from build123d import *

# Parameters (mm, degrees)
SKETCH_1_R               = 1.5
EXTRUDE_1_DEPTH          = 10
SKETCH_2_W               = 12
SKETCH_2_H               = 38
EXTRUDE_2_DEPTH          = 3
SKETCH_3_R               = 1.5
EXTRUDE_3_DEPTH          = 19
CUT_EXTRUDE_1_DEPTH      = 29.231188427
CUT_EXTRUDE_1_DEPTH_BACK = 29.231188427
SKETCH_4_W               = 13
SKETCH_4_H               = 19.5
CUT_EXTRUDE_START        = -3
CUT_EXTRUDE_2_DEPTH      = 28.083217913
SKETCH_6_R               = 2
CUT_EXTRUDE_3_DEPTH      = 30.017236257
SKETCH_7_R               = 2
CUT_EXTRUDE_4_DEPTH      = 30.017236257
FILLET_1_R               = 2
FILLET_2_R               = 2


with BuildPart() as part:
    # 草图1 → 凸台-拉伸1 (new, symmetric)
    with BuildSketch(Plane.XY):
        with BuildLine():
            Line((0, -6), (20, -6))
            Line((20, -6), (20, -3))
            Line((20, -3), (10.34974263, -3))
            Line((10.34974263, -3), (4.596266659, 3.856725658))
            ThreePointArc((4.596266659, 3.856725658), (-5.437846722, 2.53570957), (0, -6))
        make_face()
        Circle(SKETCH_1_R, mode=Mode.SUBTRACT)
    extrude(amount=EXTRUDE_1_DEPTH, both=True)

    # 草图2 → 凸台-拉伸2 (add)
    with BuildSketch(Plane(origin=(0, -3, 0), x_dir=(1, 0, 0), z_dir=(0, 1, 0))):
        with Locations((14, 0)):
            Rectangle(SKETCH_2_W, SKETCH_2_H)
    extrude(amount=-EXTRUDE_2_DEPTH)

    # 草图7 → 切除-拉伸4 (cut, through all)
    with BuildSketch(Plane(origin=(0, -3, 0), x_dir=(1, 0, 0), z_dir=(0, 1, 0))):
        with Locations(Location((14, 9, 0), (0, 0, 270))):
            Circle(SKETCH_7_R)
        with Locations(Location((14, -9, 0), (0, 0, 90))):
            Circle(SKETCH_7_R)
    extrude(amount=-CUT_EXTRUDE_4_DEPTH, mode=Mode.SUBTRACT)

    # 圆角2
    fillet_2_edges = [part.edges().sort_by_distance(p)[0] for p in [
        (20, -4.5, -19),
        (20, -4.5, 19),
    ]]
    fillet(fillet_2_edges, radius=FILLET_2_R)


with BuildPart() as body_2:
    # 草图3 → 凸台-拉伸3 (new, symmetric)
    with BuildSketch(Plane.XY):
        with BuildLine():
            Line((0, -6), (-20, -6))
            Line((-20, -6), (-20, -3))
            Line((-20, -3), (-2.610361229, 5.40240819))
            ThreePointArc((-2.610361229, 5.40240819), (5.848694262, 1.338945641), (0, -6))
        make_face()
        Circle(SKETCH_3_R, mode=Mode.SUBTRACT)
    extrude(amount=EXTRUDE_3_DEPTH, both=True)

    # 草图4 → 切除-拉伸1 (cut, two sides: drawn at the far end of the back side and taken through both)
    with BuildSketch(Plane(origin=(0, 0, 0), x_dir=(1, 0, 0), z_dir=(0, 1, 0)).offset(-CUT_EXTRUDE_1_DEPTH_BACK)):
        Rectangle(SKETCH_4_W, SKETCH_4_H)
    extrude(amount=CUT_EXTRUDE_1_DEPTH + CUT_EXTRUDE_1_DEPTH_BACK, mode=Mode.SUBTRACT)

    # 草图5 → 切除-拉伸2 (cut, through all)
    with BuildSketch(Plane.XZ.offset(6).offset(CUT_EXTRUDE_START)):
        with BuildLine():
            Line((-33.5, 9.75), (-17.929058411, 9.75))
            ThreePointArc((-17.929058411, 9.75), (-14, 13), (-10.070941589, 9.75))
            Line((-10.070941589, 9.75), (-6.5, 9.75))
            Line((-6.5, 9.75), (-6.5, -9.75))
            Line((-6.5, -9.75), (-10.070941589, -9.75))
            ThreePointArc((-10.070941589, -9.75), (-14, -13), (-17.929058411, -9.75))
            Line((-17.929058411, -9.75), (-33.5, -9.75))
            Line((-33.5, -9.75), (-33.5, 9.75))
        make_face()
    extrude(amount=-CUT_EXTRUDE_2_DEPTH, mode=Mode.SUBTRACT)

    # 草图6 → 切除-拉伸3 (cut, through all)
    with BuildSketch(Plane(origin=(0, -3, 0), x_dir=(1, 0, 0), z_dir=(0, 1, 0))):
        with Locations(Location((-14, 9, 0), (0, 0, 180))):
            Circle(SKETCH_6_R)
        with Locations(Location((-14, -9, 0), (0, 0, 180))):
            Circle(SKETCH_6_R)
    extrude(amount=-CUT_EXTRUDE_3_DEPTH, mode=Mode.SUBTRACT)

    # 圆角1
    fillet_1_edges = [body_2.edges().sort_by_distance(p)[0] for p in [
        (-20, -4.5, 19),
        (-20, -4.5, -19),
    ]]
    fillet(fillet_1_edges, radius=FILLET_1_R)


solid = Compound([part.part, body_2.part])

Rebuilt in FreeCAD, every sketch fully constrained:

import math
import FreeCAD as App
import Part
import Sketcher
Q = App.Units.Quantity


def edges_at(feature, points):
    """Names of the edges that pass closest to the given points."""
    edges = feature.Shape.Edges
    near = lambda p: min(range(len(edges)), key=lambda i: edges[i].distToShape(Part.Vertex(*p))[0])
    return sorted({f"Edge{near(p) + 1}" for p in points})


def add_polygon(sketch, points):
    """Adds a closed chain of lines whose ends are joined by coincident constraints."""
    first, n = sketch.GeometryCount, len(points)
    for a, b in zip(points, points[1:] + points[:1]):
        sketch.addGeometry(Part.LineSegment(App.Vector(*a, 0), App.Vector(*b, 0)), False)
    for i in range(n):
        sketch.addConstraint(Sketcher.Constraint("Coincident", first + i, 2, first + (i + 1) % n, 1))

doc = App.newDocument("Part")
body = doc.addObject("PartDesign::Body", "Body")

# Sketch on XY plane
sketch1 = doc.addObject("Sketcher::SketchObject", "Sketch")
body.addObject(sketch1)
sketch1.AttachmentSupport = (doc.XY_Plane, [""])
sketch1.MapMode = "FlatFace"
sketch1.addGeometry([
    Part.LineSegment(App.Vector(0, -6, 0), App.Vector(20, -6, 0)),  # 0
    Part.LineSegment(App.Vector(20, -6, 0), App.Vector(20, -3, 0)),  # 1
    Part.LineSegment(App.Vector(20, -3, 0), App.Vector(10.3, -3, 0)),  # 2
    Part.LineSegment(App.Vector(10.3, -3, 0), App.Vector(4.6, 3.9, 0)),  # 3
    Part.ArcOfCircle(Part.Circle(App.Vector(0, 0, 0), App.Vector(0, 0, 1), 6), math.radians(40), math.radians(270)),  # 4
    Part.Circle(App.Vector(0, 0, 0), App.Vector(0, 0, 1), 1.5),  # 5
], False)
sketch1.addConstraint([
    Sketcher.Constraint("Coincident", 0, 2, 1, 1),
    Sketcher.Constraint("Coincident", 1, 2, 2, 1),
    Sketcher.Constraint("Coincident", 2, 2, 3, 1),
    Sketcher.Constraint("Tangent", 3, 2, 4, 1),
    Sketcher.Constraint("Tangent", 4, 2, 0, 1),
    Sketcher.Constraint("Horizontal", 0),
    Sketcher.Constraint("Vertical", 1),
    Sketcher.Constraint("Horizontal", 2),
    Sketcher.Constraint("Coincident", 4, 3, -1, 1),
    Sketcher.Constraint("Coincident", 5, 3, -1, 1),
    Sketcher.Constraint("Diameter", 5, 3.0),
    Sketcher.Constraint("Radius", 4, 6.0),
    Sketcher.Constraint("DistanceX", 0, 1, 0, 2, 20.0),
    Sketcher.Constraint("DistanceY", 1, 1, 1, 2, 3.0),
    Sketcher.Constraint("Angle", 3, Q("130 deg")),
])
pad1 = doc.addObject("PartDesign::Pad", "Pad")
body.addObject(pad1)
pad1.Profile = sketch1
pad1.Length = 20
pad1.Midplane = True

# Sketch on XZ plane
sketch2 = doc.addObject("Sketcher::SketchObject", "Sketch001")
body.addObject(sketch2)
sketch2.AttachmentSupport = (doc.XZ_Plane, [""])
sketch2.MapMode = "FlatFace"
sketch2.AttachmentOffset = App.Placement(App.Vector(0, 0, 3), App.Rotation())
add_polygon(sketch2, [(8, -19), (8, 19), (20, 19), (20, -19)])  # lines 0-3
sketch2.addConstraint([
    Sketcher.Constraint("Vertical", 0),
    Sketcher.Constraint("Horizontal", 1),
    Sketcher.Constraint("Vertical", 2),
    Sketcher.Constraint("Horizontal", 3),
    Sketcher.Constraint("DistanceX", 1, 1, 1, 2, 12.0),
    Sketcher.Constraint("DistanceY", 0, 1, 0, 2, 38.0),
    Sketcher.Constraint("DistanceX", -1, 1, 0, 2, 8.0),
    Sketcher.Constraint("DistanceY", -1, 1, 0, 2, 19.0),
])
pad2 = doc.addObject("PartDesign::Pad", "Pad001")
body.addObject(pad2)
pad2.Profile = sketch2
pad2.Length = 3

# Sketch on XZ plane
sketch3 = doc.addObject("Sketcher::SketchObject", "Sketch002")
body.addObject(sketch3)
sketch3.AttachmentSupport = (doc.XZ_Plane, [""])
sketch3.MapMode = "FlatFace"
sketch3.AttachmentOffset = App.Placement(App.Vector(0, 0, 3), App.Rotation())
sketch3.addGeometry([
    Part.Circle(App.Vector(14, -9, 0), App.Vector(0, 0, 1), 2),
    Part.Circle(App.Vector(14, 9, 0), App.Vector(0, 0, 1), 2),
], False)
sketch3.addConstraint([
    Sketcher.Constraint("Equal", 0, 1),
    Sketcher.Constraint("Symmetric", 0, 3, 1, 3, -1),
    Sketcher.Constraint("Diameter", 0, 4.0),
    Sketcher.Constraint("DistanceX", -1, 1, 0, 3, 14.0),
    Sketcher.Constraint("DistanceY", 0, 3, -1, 1, 9.0),
])
pocket1 = doc.addObject("PartDesign::Pocket", "Pocket")
body.addObject(pocket1)
pocket1.Profile = sketch3
pocket1.Type = "ThroughAll"
pocket1.Reversed = True
doc.recompute()

fillet = doc.addObject("PartDesign::Fillet", "Fillet")
body.addObject(fillet)
fillet.Base = (pocket1, edges_at(pocket1, [(20, -4.5, -19), (20, -4.5, 19)]))
fillet.Radius = 2
body2 = doc.addObject("PartDesign::Body", "Body001")

# Sketch on XY plane
sketch4 = doc.addObject("Sketcher::SketchObject", "Sketch003")
body2.addObject(sketch4)
sketch4.AttachmentSupport = (doc.getObject("XY_Plane001"), [""])
sketch4.MapMode = "FlatFace"
sketch4.addGeometry([
    Part.LineSegment(App.Vector(-20, -6, 0), App.Vector(0, -6, 0)),  # 0
    Part.ArcOfCircle(Part.Circle(App.Vector(0, 0, 0), App.Vector(0, 0, 1), 6), math.radians(-90), math.radians(116)),  # 1
    Part.LineSegment(App.Vector(-2.6, 5.4, 0), App.Vector(-20, -3, 0)),  # 2
    Part.LineSegment(App.Vector(-20, -3, 0), App.Vector(-20, -6, 0)),  # 3
    Part.Circle(App.Vector(0, 0, 0), App.Vector(0, 0, 1), 1.5),  # 4
], False)
sketch4.addConstraint([
    Sketcher.Constraint("Tangent", 0, 2, 1, 1),
    Sketcher.Constraint("Tangent", 1, 2, 2, 1),
    Sketcher.Constraint("Coincident", 2, 2, 3, 1),
    Sketcher.Constraint("Coincident", 3, 2, 0, 1),
    Sketcher.Constraint("Horizontal", 0),
    Sketcher.Constraint("Vertical", 3),
    Sketcher.Constraint("Coincident", 1, 3, -1, 1),
    Sketcher.Constraint("Coincident", 4, 3, -1, 1),
    Sketcher.Constraint("Diameter", 4, 3.0),
    Sketcher.Constraint("Radius", 1, 6.0),
    Sketcher.Constraint("DistanceX", 0, 1, 0, 2, 20.0),
    Sketcher.Constraint("DistanceY", 3, 2, 3, 1, 3.0),
])
pad3 = doc.addObject("PartDesign::Pad", "Pad002")
body2.addObject(pad3)
pad3.Profile = sketch4
pad3.Length = 38
pad3.Midplane = True

# Sketch on XZ plane
sketch5 = doc.addObject("Sketcher::SketchObject", "Sketch004")
body2.addObject(sketch5)
sketch5.AttachmentSupport = (doc.getObject("XZ_Plane001"), [""])
sketch5.MapMode = "FlatFace"
add_polygon(sketch5, [(-6, -10), (-6, 10), (6, 10), (6, -10)])  # lines 0-3
sketch5.addConstraint([
    Sketcher.Constraint("Vertical", 0),
    Sketcher.Constraint("Horizontal", 1),
    Sketcher.Constraint("Vertical", 2),
    Sketcher.Constraint("Horizontal", 3),
    Sketcher.Constraint("Symmetric", 0, 2, 2, 2, -1, 1),
    Sketcher.Constraint("DistanceX", 1, 1, 1, 2, 13.0),
    Sketcher.Constraint("DistanceY", 0, 1, 0, 2, 19.5),
])
pocket2 = doc.addObject("PartDesign::Pocket", "Pocket001")
body2.addObject(pocket2)
pocket2.Profile = sketch5
pocket2.Type = "ThroughAll"
pocket2.Midplane = True

# Sketch on XZ plane
sketch6 = doc.addObject("Sketcher::SketchObject", "Sketch005")
body2.addObject(sketch6)
sketch6.AttachmentSupport = (doc.getObject("XZ_Plane001"), [""])
sketch6.MapMode = "FlatFace"
sketch6.AttachmentOffset = App.Placement(App.Vector(0, 0, 3), App.Rotation())
sketch6.addGeometry([
    Part.LineSegment(App.Vector(-17.9, 9.8, 0), App.Vector(-33.5, 9.8, 0)),  # 0
    Part.LineSegment(App.Vector(-33.5, 9.8, 0), App.Vector(-33.5, -9.8, 0)),  # 1
    Part.LineSegment(App.Vector(-33.5, -9.8, 0), App.Vector(-17.9, -9.8, 0)),  # 2
    Part.ArcOfCircle(Part.Circle(App.Vector(-14, -9, 0), App.Vector(0, 0, 1), 4), math.radians(-169), math.radians(-11)),  # 3
    Part.LineSegment(App.Vector(-10.1, -9.8, 0), App.Vector(-6.5, -9.8, 0)),  # 4
    Part.LineSegment(App.Vector(-6.5, -9.8, 0), App.Vector(-6.5, 9.8, 0)),  # 5
    Part.LineSegment(App.Vector(-6.5, 9.8, 0), App.Vector(-10.1, 9.8, 0)),  # 6
    Part.ArcOfCircle(Part.Circle(App.Vector(-14, 9, 0), App.Vector(0, 0, 1), 4), math.radians(11), math.radians(169)),  # 7
], False)
sketch6.addConstraint([
    Sketcher.Constraint("Coincident", 0, 2, 1, 1),
    Sketcher.Constraint("Coincident", 1, 2, 2, 1),
    Sketcher.Constraint("Coincident", 2, 2, 3, 1),
    Sketcher.Constraint("Coincident", 3, 2, 4, 1),
    Sketcher.Constraint("Coincident", 4, 2, 5, 1),
    Sketcher.Constraint("Coincident", 5, 2, 6, 1),
    Sketcher.Constraint("Coincident", 6, 2, 7, 1),
    Sketcher.Constraint("Coincident", 7, 2, 0, 1),
    Sketcher.Constraint("Horizontal", 0),
    Sketcher.Constraint("Vertical", 1),
    Sketcher.Constraint("Horizontal", 2),
    Sketcher.Constraint("Horizontal", 4),
    Sketcher.Constraint("Vertical", 5),
    Sketcher.Constraint("Horizontal", 6),
    Sketcher.Constraint("Equal", 3, 7),
    Sketcher.Constraint("Symmetric", 3, 3, 7, 3, -1),
    Sketcher.Constraint("Horizontal", 2, 2, 3, 2),
    Sketcher.Constraint("Horizontal", 0, 2, 5, 2),
    Sketcher.Constraint("Vertical", 3, 2, 6, 2),
    Sketcher.Constraint("Radius", 3, 4.0),
    Sketcher.Constraint("DistanceY", 1, 2, 1, 1, 19.5),
    Sketcher.Constraint("DistanceX", 3, 3, -1, 1, 14.0),
    Sketcher.Constraint("DistanceY", 3, 3, -1, 1, 9.0),
    Sketcher.Constraint("DistanceX", 1, 2, 4, 2, 27.0),
    Sketcher.Constraint("DistanceX", 0, 2, -1, 1, 33.5),
])
pocket3 = doc.addObject("PartDesign::Pocket", "Pocket002")
body2.addObject(pocket3)
pocket3.Profile = sketch6
pocket3.Type = "ThroughAll"

# Sketch on XZ plane
sketch7 = doc.addObject("Sketcher::SketchObject", "Sketch006")
body2.addObject(sketch7)
sketch7.AttachmentSupport = (doc.getObject("XZ_Plane001"), [""])
sketch7.MapMode = "FlatFace"
sketch7.AttachmentOffset = App.Placement(App.Vector(0, 0, 3), App.Rotation())
sketch7.addGeometry([
    Part.Circle(App.Vector(-14, -9, 0), App.Vector(0, 0, 1), 2),
    Part.Circle(App.Vector(-14, 9, 0), App.Vector(0, 0, 1), 2),
], False)
sketch7.addConstraint([
    Sketcher.Constraint("Equal", 0, 1),
    Sketcher.Constraint("Symmetric", 0, 3, 1, 3, -1),
    Sketcher.Constraint("Diameter", 0, 4.0),
    Sketcher.Constraint("DistanceX", 0, 3, -1, 1, 14.0),
    Sketcher.Constraint("DistanceY", 0, 3, -1, 1, 9.0),
])
pocket4 = doc.addObject("PartDesign::Pocket", "Pocket003")
body2.addObject(pocket4)
pocket4.Profile = sketch7
pocket4.Type = "ThroughAll"
pocket4.Reversed = True
doc.recompute()

fillet2 = doc.addObject("PartDesign::Fillet", "Fillet001")
body2.addObject(fillet2)
fillet2.Base = (pocket4, edges_at(pocket4, [(-20, -4.5, 19), (-20, -4.5, -19)]))
fillet2.Radius = 2

doc.recompute()
